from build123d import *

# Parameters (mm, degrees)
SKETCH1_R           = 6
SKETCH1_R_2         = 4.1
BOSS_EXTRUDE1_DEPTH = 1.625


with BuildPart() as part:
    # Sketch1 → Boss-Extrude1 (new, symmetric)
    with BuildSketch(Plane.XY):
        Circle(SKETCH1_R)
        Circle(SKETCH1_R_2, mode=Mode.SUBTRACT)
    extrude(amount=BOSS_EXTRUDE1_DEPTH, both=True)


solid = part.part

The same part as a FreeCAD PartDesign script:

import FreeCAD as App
import Part
import Sketcher

doc = App.newDocument("Part")
body = doc.addObject("PartDesign::Body", "Body")

sketch1 = doc.addObject("Sketcher::SketchObject", "Sketch")
body.addObject(sketch1)
sketch1.AttachmentSupport = (doc.XY_Plane, [""])
sketch1.MapMode = "FlatFace"
sketch1.addGeometry([
    Part.Circle(App.Vector(0, 0, 0), App.Vector(0, 0, 1), 6),
    Part.Circle(App.Vector(0, 0, 0), App.Vector(0, 0, 1), 4.1),
], False)
sketch1.addConstraint([
    Sketcher.Constraint("Coincident", 0, 3, -1, 1),
    Sketcher.Constraint("Coincident", 1, 3, -1, 1),
    Sketcher.Constraint("Diameter", 0, 12.0),
    Sketcher.Constraint("Diameter", 1, 8.2),
])
pad1 = doc.addObject("PartDesign::Pad", "Pad")
body.addObject(pad1)
pad1.Profile = sketch1
pad1.Length = 3.25
pad1.Midplane = True

doc.recompute()
